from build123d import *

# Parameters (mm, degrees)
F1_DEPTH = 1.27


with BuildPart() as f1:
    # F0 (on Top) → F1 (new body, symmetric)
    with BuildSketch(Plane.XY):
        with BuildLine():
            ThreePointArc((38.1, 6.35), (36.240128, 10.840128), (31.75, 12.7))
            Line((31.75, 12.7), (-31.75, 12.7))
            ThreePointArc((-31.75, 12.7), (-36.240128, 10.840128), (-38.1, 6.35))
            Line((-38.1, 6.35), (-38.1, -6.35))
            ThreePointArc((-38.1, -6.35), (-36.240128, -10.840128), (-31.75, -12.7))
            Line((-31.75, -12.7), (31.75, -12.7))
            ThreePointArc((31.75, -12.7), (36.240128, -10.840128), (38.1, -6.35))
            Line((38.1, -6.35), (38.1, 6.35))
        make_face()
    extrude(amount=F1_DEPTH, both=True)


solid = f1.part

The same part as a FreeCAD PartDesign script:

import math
import FreeCAD as App
import Part
import Sketcher
Q = App.Units.Quantity

doc = App.newDocument("Part")
body = doc.addObject("PartDesign::Body", "Body")

# Sketch on XY plane
sketch1 = body.newObject("Sketcher::SketchObject", "Sketch")
sketch1.AttachmentSupport = (doc.getObject("XY_Plane"), [""])
sketch1.MapMode = "FlatFace"
sketch1.addGeometry([
    Part.ArcOfCircle(Part.Circle(App.Vector(31.75, 6.35, 0), App.Vector(0, 0, 1), 6.35), math.radians(0.000002), math.radians(89.999998)),  # 0
    Part.LineSegment(App.Vector(31.75, 12.7, 0), App.Vector(-31.75, 12.7, 0)),  # 1
    Part.ArcOfCircle(Part.Circle(App.Vector(-31.75, 6.35, 0), App.Vector(0, 0, 1), 6.35), math.radians(90.000002), math.radians(179.999998)),  # 2
    Part.LineSegment(App.Vector(-38.1, 6.35, 0), App.Vector(-38.1, -6.35, 0)),  # 3
    Part.ArcOfCircle(Part.Circle(App.Vector(-31.75, -6.35, 0), App.Vector(0, 0, 1), 6.35), math.radians(-179.999998), math.radians(-90.000002)),  # 4
    Part.LineSegment(App.Vector(-31.75, -12.7, 0), App.Vector(31.75, -12.7, 0)),  # 5
    Part.ArcOfCircle(Part.Circle(App.Vector(31.75, -6.35, 0), App.Vector(0, 0, 1), 6.35), math.radians(-89.999998), math.radians(-0.000002)),  # 6
    Part.LineSegment(App.Vector(38.1, -6.35, 0), App.Vector(38.1, 6.35, 0)),  # 7
], False)
sketch1.addConstraint([
    Sketcher.Constraint("Tangent", 0, 2, 1, 1),
    Sketcher.Constraint("Tangent", 1, 2, 2, 1),
    Sketcher.Constraint("Tangent", 2, 2, 3, 1),
    Sketcher.Constraint("Tangent", 3, 2, 4, 1),
    Sketcher.Constraint("Tangent", 4, 2, 5, 1),
    Sketcher.Constraint("Tangent", 5, 2, 6, 1),
    Sketcher.Constraint("Tangent", 6, 2, 7, 1),
    Sketcher.Constraint("Tangent", 7, 2, 0, 1),
    Sketcher.Constraint("Horizontal", 1),
    Sketcher.Constraint("Vertical", 3),
    Sketcher.Constraint("Horizontal", 5),
    Sketcher.Constraint("Vertical", 7),
    Sketcher.Constraint("Equal", 0, 2),
    Sketcher.Constraint("Equal", 2, 4),
    Sketcher.Constraint("Equal", 4, 6),
    Sketcher.Constraint("Symmetric", 0, 3, 4, 3, -1, 1),
    Sketcher.Constraint("Radius", 0, Q("0.25 in")),
    Sketcher.Constraint("DistanceX", 1, 2, 1, 1, Q("2.5 in")),
    Sketcher.Constraint("DistanceY", 3, 2, 3, 1, Q("0.5 in")),
])
pad1 = body.newObject("PartDesign::Pad", "Pad")
pad1.Profile = sketch1
pad1.Length = Q("0.1 in")
pad1.Midplane = True

doc.recompute()
